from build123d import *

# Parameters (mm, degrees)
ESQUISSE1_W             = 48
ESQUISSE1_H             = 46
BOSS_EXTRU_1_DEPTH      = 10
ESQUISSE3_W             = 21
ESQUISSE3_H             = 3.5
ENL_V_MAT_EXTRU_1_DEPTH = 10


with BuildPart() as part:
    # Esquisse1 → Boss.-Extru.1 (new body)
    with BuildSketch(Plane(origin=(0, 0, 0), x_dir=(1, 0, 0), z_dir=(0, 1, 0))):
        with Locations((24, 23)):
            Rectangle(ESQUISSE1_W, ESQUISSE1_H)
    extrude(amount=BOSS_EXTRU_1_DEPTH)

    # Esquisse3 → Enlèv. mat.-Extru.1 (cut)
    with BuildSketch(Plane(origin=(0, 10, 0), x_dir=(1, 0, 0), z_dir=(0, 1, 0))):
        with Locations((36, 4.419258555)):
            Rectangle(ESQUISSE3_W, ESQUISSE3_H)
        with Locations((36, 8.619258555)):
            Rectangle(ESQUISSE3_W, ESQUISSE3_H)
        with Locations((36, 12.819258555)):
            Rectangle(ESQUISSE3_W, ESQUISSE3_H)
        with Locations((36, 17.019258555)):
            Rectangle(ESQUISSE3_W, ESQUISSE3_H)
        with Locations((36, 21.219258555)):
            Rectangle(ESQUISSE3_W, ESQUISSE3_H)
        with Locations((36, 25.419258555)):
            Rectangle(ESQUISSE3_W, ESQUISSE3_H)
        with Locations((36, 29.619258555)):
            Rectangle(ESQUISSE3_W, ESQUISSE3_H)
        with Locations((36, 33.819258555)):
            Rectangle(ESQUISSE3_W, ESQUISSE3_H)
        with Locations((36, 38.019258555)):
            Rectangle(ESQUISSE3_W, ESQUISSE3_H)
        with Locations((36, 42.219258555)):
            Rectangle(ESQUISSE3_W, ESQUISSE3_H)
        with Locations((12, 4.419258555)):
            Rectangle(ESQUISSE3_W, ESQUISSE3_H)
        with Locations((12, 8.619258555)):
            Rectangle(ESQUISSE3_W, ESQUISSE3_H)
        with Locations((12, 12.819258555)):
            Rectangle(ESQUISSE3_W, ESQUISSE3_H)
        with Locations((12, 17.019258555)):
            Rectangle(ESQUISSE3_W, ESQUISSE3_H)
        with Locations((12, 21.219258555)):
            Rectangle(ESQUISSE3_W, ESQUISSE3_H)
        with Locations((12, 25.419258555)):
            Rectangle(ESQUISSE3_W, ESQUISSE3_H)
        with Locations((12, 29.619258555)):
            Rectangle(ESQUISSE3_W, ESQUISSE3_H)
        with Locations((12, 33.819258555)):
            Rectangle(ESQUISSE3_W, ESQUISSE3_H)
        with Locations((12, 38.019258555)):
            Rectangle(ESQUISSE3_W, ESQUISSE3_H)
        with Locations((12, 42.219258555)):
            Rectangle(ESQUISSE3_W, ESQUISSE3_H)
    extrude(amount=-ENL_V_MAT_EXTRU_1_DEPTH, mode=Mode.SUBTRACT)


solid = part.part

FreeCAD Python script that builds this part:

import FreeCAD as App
import Part
import Sketcher
Q = App.Units.Quantity


def add_polygon(sketch, points):
    """Adds a closed chain of lines whose ends are joined by coincident constraints."""
    first, n = sketch.GeometryCount, len(points)
    for a, b in zip(points, points[1:] + points[:1]):
        sketch.addGeometry(Part.LineSegment(App.Vector(*a, 0), App.Vector(*b, 0)), False)
    for i in range(n):
        sketch.addConstraint(Sketcher.Constraint("Coincident", first + i, 2, first + (i + 1) % n, 1))

doc = App.newDocument("Part")
body = doc.addObject("PartDesign::Body", "Body")

# Sketch on XZ plane
sketch1 = doc.addObject("Sketcher::SketchObject", "Sketch")
body.addObject(sketch1)
sketch1.AttachmentSupport = (doc.XZ_Plane, [""])
sketch1.MapMode = "FlatFace"
add_polygon(sketch1, [(0, -46), (0, 0), (48, 0), (48, -46)])  # lines 0-3
sketch1.addConstraint(Sketcher.Constraint("Vertical", 0))
sketch1.addConstraint(Sketcher.Constraint("Horizontal", 1))
sketch1.addConstraint(Sketcher.Constraint("Vertical", 2))
sketch1.addConstraint(Sketcher.Constraint("Horizontal", 3))
sketch1.addConstraint(Sketcher.Constraint("Coincident", 0, 2, -1, 1))
sketch1.addConstraint(Sketcher.Constraint("DistanceX", 1, 1, 1, 2, Q("48 mm")))
sketch1.addConstraint(Sketcher.Constraint("DistanceY", 0, 1, 0, 2, Q("46 mm")))
pad1 = doc.addObject("PartDesign::Pad", "Pad")
body.addObject(pad1)
pad1.Profile = sketch1
pad1.Length = 10
pad1.Reversed = True

# Sketch on XZ plane
sketch2 = doc.addObject("Sketcher::SketchObject", "Sketch001")
body.addObject(sketch2)
sketch2.AttachmentSupport = (doc.XZ_Plane, [""])
sketch2.MapMode = "FlatFace"
sketch2.AttachmentOffset = App.Placement(App.Vector(0, 0, -10), App.Rotation())
add_polygon(sketch2, [(25.5, -6.2), (25.5, -2.7), (46.5, -2.7), (46.5, -6.2)])  # lines 0-3
add_polygon(sketch2, [(25.5, -10.4), (25.5, -6.9), (46.5, -6.9), (46.5, -10.4)])  # lines 4-7
add_polygon(sketch2, [(25.5, -14.6), (25.5, -11.1), (46.5, -11.1), (46.5, -14.6)])  # lines 8-11
add_polygon(sketch2, [(25.5, -18.8), (25.5, -15.3), (46.5, -15.3), (46.5, -18.8)])  # lines 12-15
add_polygon(sketch2, [(25.5, -23), (25.5, -19.5), (46.5, -19.5), (46.5, -23)])  # lines 16-19
add_polygon(sketch2, [(25.5, -27.2), (25.5, -23.7), (46.5, -23.7), (46.5, -27.2)])  # lines 20-23
add_polygon(sketch2, [(25.5, -31.4), (25.5, -27.9), (46.5, -27.9), (46.5, -31.4)])  # lines 24-27
add_polygon(sketch2, [(25.5, -35.6), (25.5, -32.1), (46.5, -32.1), (46.5, -35.6)])  # lines 28-31
add_polygon(sketch2, [(25.5, -39.8), (25.5, -36.3), (46.5, -36.3), (46.5, -39.8)])  # lines 32-35
add_polygon(sketch2, [(25.5, -44), (25.5, -40.5), (46.5, -40.5), (46.5, -44)])  # lines 36-39
add_polygon(sketch2, [(1.5, -6.2), (1.5, -2.7), (22.5, -2.7), (22.5, -6.2)])  # lines 40-43
add_polygon(sketch2, [(1.5, -10.4), (1.5, -6.9), (22.5, -6.9), (22.5, -10.4)])  # lines 44-47
add_polygon(sketch2, [(1.5, -14.6), (1.5, -11.1), (22.5, -11.1), (22.5, -14.6)])  # lines 48-51
add_polygon(sketch2, [(1.5, -18.8), (1.5, -15.3), (22.5, -15.3), (22.5, -18.8)])  # lines 52-55
add_polygon(sketch2, [(1.5, -23), (1.5, -19.5), (22.5, -19.5), (22.5, -23)])  # lines 56-59
add_polygon(sketch2, [(1.5, -27.2), (1.5, -23.7), (22.5, -23.7), (22.5, -27.2)])  # lines 60-63
add_polygon(sketch2, [(1.5, -31.4), (1.5, -27.9), (22.5, -27.9), (22.5, -31.4)])  # lines 64-67
add_polygon(sketch2, [(1.5, -35.6), (1.5, -32.1), (22.5, -32.1), (22.5, -35.6)])  # lines 68-71
add_polygon(sketch2, [(1.5, -39.8), (1.5, -36.3), (22.5, -36.3), (22.5, -39.8)])  # lines 72-75
add_polygon(sketch2, [(1.5, -44), (1.5, -40.5), (22.5, -40.5), (22.5, -44)])  # lines 76-79
sketch2.addConstraint(Sketcher.Constraint("Vertical", 0))
sketch2.addConstraint(Sketcher.Constraint("Horizontal", 1))
sketch2.addConstraint(Sketcher.Constraint("Vertical", 2))
sketch2.addConstraint(Sketcher.Constraint("Horizontal", 3))
sketch2.addConstraint(Sketcher.Constraint("Vertical", 4))
sketch2.addConstraint(Sketcher.Constraint("Horizontal", 5))
sketch2.addConstraint(Sketcher.Constraint("Vertical", 6))
sketch2.addConstraint(Sketcher.Constraint("Horizontal", 7))
sketch2.addConstraint(Sketcher.Constraint("Vertical", 8))
sketch2.addConstraint(Sketcher.Constraint("Horizontal", 9))
sketch2.addConstraint(Sketcher.Constraint("Vertical", 10))
sketch2.addConstraint(Sketcher.Constraint("Horizontal", 11))
sketch2.addConstraint(Sketcher.Constraint("Vertical", 12))
sketch2.addConstraint(Sketcher.Constraint("Horizontal", 13))
sketch2.addConstraint(Sketcher.Constraint("Vertical", 14))
sketch2.addConstraint(Sketcher.Constraint("Horizontal", 15))
sketch2.addConstraint(Sketcher.Constraint("Vertical", 16))
sketch2.addConstraint(Sketcher.Constraint("Horizontal", 17))
sketch2.addConstraint(Sketcher.Constraint("Vertical", 18))
sketch2.addConstraint(Sketcher.Constraint("Horizontal", 19))
sketch2.addConstraint(Sketcher.Constraint("Vertical", 20))
sketch2.addConstraint(Sketcher.Constraint("Horizontal", 21))
sketch2.addConstraint(Sketcher.Constraint("Vertical", 22))
sketch2.addConstraint(Sketcher.Constraint("Horizontal", 23))
sketch2.addConstraint(Sketcher.Constraint("Vertical", 24))
sketch2.addConstraint(Sketcher.Constraint("Horizontal", 25))
sketch2.addConstraint(Sketcher.Constraint("Vertical", 26))
sketch2.addConstraint(Sketcher.Constraint("Horizontal", 27))
sketch2.addConstraint(Sketcher.Constraint("Vertical", 28))
sketch2.addConstraint(Sketcher.Constraint("Horizontal", 29))
sketch2.addConstraint(Sketcher.Constraint("Vertical", 30))
sketch2.addConstraint(Sketcher.Constraint("Horizontal", 31))
sketch2.addConstraint(Sketcher.Constraint("Vertical", 32))
sketch2.addConstraint(Sketcher.Constraint("Horizontal", 33))
sketch2.addConstraint(Sketcher.Constraint("Vertical", 34))
sketch2.addConstraint(Sketcher.Constraint("Horizontal", 35))
sketch2.addConstraint(Sketcher.Constraint("Vertical", 36))
sketch2.addConstraint(Sketcher.Constraint("Horizontal", 37))
sketch2.addConstraint(Sketcher.Constraint("Vertical", 38))
sketch2.addConstraint(Sketcher.Constraint("Horizontal", 39))
sketch2.addConstraint(Sketcher.Constraint("Vertical", 40))
sketch2.addConstraint(Sketcher.Constraint("Horizontal", 41))
sketch2.addConstraint(Sketcher.Constraint("Vertical", 42))
sketch2.addConstraint(Sketcher.Constraint("Horizontal", 43))
sketch2.addConstraint(Sketcher.Constraint("Vertical", 44))
sketch2.addConstraint(Sketcher.Constraint("Horizontal", 45))
sketch2.addConstraint(Sketcher.Constraint("Vertical", 46))
sketch2.addConstraint(Sketcher.Constraint("Horizontal", 47))
sketch2.addConstraint(Sketcher.Constraint("Vertical", 48))
sketch2.addConstraint(Sketcher.Constraint("Horizontal", 49))
sketch2.addConstraint(Sketcher.Constraint("Vertical", 50))
sketch2.addConstraint(Sketcher.Constraint("Horizontal", 51))
sketch2.addConstraint(Sketcher.Constraint("Vertical", 52))
sketch2.addConstraint(Sketcher.Constraint("Horizontal", 53))
sketch2.addConstraint(Sketcher.Constraint("Vertical", 54))
sketch2.addConstraint(Sketcher.Constraint("Horizontal", 55))
sketch2.addConstraint(Sketcher.Constraint("Vertical", 56))
sketch2.addConstraint(Sketcher.Constraint("Horizontal", 57))
sketch2.addConstraint(Sketcher.Constraint("Vertical", 58))
sketch2.addConstraint(Sketcher.Constraint("Horizontal", 59))
sketch2.addConstraint(Sketcher.Constraint("Vertical", 60))
sketch2.addConstraint(Sketcher.Constraint("Horizontal", 61))
sketch2.addConstraint(Sketcher.Constraint("Vertical", 62))
sketch2.addConstraint(Sketcher.Constraint("Horizontal", 63))
sketch2.addConstraint(Sketcher.Constraint("Vertical", 64))
sketch2.addConstraint(Sketcher.Constraint("Horizontal", 65))
sketch2.addConstraint(Sketcher.Constraint("Vertical", 66))
sketch2.addConstraint(Sketcher.Constraint("Horizontal", 67))
sketch2.addConstraint(Sketcher.Constraint("Vertical", 68))
sketch2.addConstraint(Sketcher.Constraint("Horizontal", 69))
sketch2.addConstraint(Sketcher.Constraint("Vertical", 70))
sketch2.addConstraint(Sketcher.Constraint("Horizontal", 71))
sketch2.addConstraint(Sketcher.Constraint("Vertical", 72))
sketch2.addConstraint(Sketcher.Constraint("Horizontal", 73))
sketch2.addConstraint(Sketcher.Constraint("Vertical", 74))
sketch2.addConstraint(Sketcher.Constraint("Horizontal", 75))
sketch2.addConstraint(Sketcher.Constraint("Vertical", 76))
sketch2.addConstraint(Sketcher.Constraint("Horizontal", 77))
sketch2.addConstraint(Sketcher.Constraint("Vertical", 78))
sketch2.addConstraint(Sketcher.Constraint("Horizontal", 79))
sketch2.addConstraint(Sketcher.Constraint("Horizontal", 1, 2, 40, 2))
sketch2.addConstraint(Sketcher.Constraint("Horizontal", 3, 2, 42, 2))
sketch2.addConstraint(Sketcher.Constraint("Horizontal", 5, 2, 44, 2))
sketch2.addConstraint(Sketcher.Constraint("Horizontal", 7, 2, 46, 2))
sketch2.addConstraint(Sketcher.Constraint("Horizontal", 9, 2, 48, 2))
sketch2.addConstraint(Sketcher.Constraint("Horizontal", 11, 2, 50, 2))
sketch2.addConstraint(Sketcher.Constraint("Horizontal", 13, 2, 52, 2))
sketch2.addConstraint(Sketcher.Constraint("Horizontal", 15, 2, 54, 2))
sketch2.addConstraint(Sketcher.Constraint("Horizontal", 17, 2, 56, 2))
sketch2.addConstraint(Sketcher.Constraint("Horizontal", 19, 2, 58, 2))
sketch2.addConstraint(Sketcher.Constraint("Horizontal", 21, 2, 60, 2))
sketch2.addConstraint(Sketcher.Constraint("Horizontal", 23, 2, 62, 2))
sketch2.addConstraint(Sketcher.Constraint("Horizontal", 25, 2, 64, 2))
sketch2.addConstraint(Sketcher.Constraint("Horizontal", 27, 2, 66, 2))
sketch2.addConstraint(Sketcher.Constraint("Horizontal", 29, 2, 68, 2))
sketch2.addConstraint(Sketcher.Constraint("Horizontal", 31, 2, 70, 2))
sketch2.addConstraint(Sketcher.Constraint("Horizontal", 33, 2, 72, 2))
sketch2.addConstraint(Sketcher.Constraint("Horizontal", 35, 2, 74, 2))
sketch2.addConstraint(Sketcher.Constraint("Horizontal", 37, 2, 76, 2))
sketch2.addConstraint(Sketcher.Constraint("Horizontal", 39, 2, 78, 2))
sketch2.addConstraint(Sketcher.Constraint("Vertical", 3, 2, 4, 2))
sketch2.addConstraint(Sketcher.Constraint("Vertical", 2, 2, 5, 2))
sketch2.addConstraint(Sketcher.Constraint("Vertical", 7, 2, 8, 2))
sketch2.addConstraint(Sketcher.Constraint("Vertical", 6, 2, 9, 2))
sketch2.addConstraint(Sketcher.Constraint("Vertical", 11, 2, 12, 2))
sketch2.addConstraint(Sketcher.Constraint("Vertical", 10, 2, 13, 2))
sketch2.addConstraint(Sketcher.Constraint("Vertical", 15, 2, 16, 2))
sketch2.addConstraint(Sketcher.Constraint("Vertical", 14, 2, 17, 2))
sketch2.addConstraint(Sketcher.Constraint("Vertical", 19, 2, 20, 2))
sketch2.addConstraint(Sketcher.Constraint("Vertical", 18, 2, 21, 2))
sketch2.addConstraint(Sketcher.Constraint("Vertical", 23, 2, 24, 2))
sketch2.addConstraint(Sketcher.Constraint("Vertical", 22, 2, 25, 2))
sketch2.addConstraint(Sketcher.Constraint("Vertical", 27, 2, 28, 2))
sketch2.addConstraint(Sketcher.Constraint("Vertical", 26, 2, 29, 2))
sketch2.addConstraint(Sketcher.Constraint("Vertical", 31, 2, 32, 2))
sketch2.addConstraint(Sketcher.Constraint("Vertical", 30, 2, 33, 2))
sketch2.addConstraint(Sketcher.Constraint("Vertical", 35, 2, 36, 2))
sketch2.addConstraint(Sketcher.Constraint("Vertical", 34, 2, 37, 2))
sketch2.addConstraint(Sketcher.Constraint("Vertical", 43, 2, 44, 2))
sketch2.addConstraint(Sketcher.Constraint("Vertical", 42, 2, 45, 2))
sketch2.addConstraint(Sketcher.Constraint("Vertical", 47, 2, 48, 2))
sketch2.addConstraint(Sketcher.Constraint("Vertical", 46, 2, 49, 2))
sketch2.addConstraint(Sketcher.Constraint("Vertical", 51, 2, 52, 2))
sketch2.addConstraint(Sketcher.Constraint("Vertical", 50, 2, 53, 2))
sketch2.addConstraint(Sketcher.Constraint("Vertical", 55, 2, 56, 2))
sketch2.addConstraint(Sketcher.Constraint("Vertical", 54, 2, 57, 2))
sketch2.addConstraint(Sketcher.Constraint("Vertical", 59, 2, 60, 2))
sketch2.addConstraint(Sketcher.Constraint("Vertical", 58, 2, 61, 2))
sketch2.addConstraint(Sketcher.Constraint("Vertical", 63, 2, 64, 2))
sketch2.addConstraint(Sketcher.Constraint("Vertical", 62, 2, 65, 2))
sketch2.addConstraint(Sketcher.Constraint("Vertical", 67, 2, 68, 2))
sketch2.addConstraint(Sketcher.Constraint("Vertical", 66, 2, 69, 2))
sketch2.addConstraint(Sketcher.Constraint("Vertical", 71, 2, 72, 2))
sketch2.addConstraint(Sketcher.Constraint("Vertical", 70, 2, 73, 2))
sketch2.addConstraint(Sketcher.Constraint("Vertical", 75, 2, 76, 2))
sketch2.addConstraint(Sketcher.Constraint("Vertical", 74, 2, 77, 2))
sketch2.addConstraint(Sketcher.Constraint("Equal", 39, 41))
sketch2.addConstraint(Sketcher.Constraint("Equal", 2, 4))
sketch2.addConstraint(Sketcher.Constraint("Equal", 6, 8))
sketch2.addConstraint(Sketcher.Constraint("Equal", 10, 12))
sketch2.addConstraint(Sketcher.Constraint("Equal", 14, 16))
sketch2.addConstraint(Sketcher.Constraint("Equal", 18, 20))
sketch2.addConstraint(Sketcher.Constraint("Equal", 22, 24))
sketch2.addConstraint(Sketcher.Constraint("Equal", 26, 28))
sketch2.addConstraint(Sketcher.Constraint("Equal", 30, 32))
sketch2.addConstraint(Sketcher.Constraint("Equal", 34, 36))
sketch2.addConstraint(Sketcher.Constraint("DistanceX", 1, 1, 1, 2, Q("21 mm")))
sketch2.addConstraint(Sketcher.Constraint("DistanceY", 0, 1, 0, 2, Q("3.5 mm")))
sketch2.addConstraint(Sketcher.Constraint("DistanceX", -1, 1, 0, 2, Q("25.5 mm")))
sketch2.addConstraint(Sketcher.Constraint("DistanceX", -1, 1, 40, 2, Q("1.5 mm")))
sketch2.addConstraint(Sketcher.Constraint("DistanceY", 0, 2, -1, 1, Q("2.669259 mm")))
sketch2.addConstraint(Sketcher.Constraint("DistanceY", 4, 2, -1, 1, Q("6.869259 mm")))
sketch2.addConstraint(Sketcher.Constraint("DistanceY", 8, 2, -1, 1, Q("11.069259 mm")))
sketch2.addConstraint(Sketcher.Constraint("DistanceY", 12, 2, -1, 1, Q("15.269259 mm")))
sketch2.addConstraint(Sketcher.Constraint("DistanceY", 16, 2, -1, 1, Q("19.469259 mm")))
sketch2.addConstraint(Sketcher.Constraint("DistanceY", 20, 2, -1, 1, Q("23.669259 mm")))
sketch2.addConstraint(Sketcher.Constraint("DistanceY", 24, 2, -1, 1, Q("27.869259 mm")))
sketch2.addConstraint(Sketcher.Constraint("DistanceY", 28, 2, -1, 1, Q("32.069259 mm")))
sketch2.addConstraint(Sketcher.Constraint("DistanceY", 32, 2, -1, 1, Q("36.269259 mm")))
sketch2.addConstraint(Sketcher.Constraint("DistanceY", 36, 2, -1, 1, Q("40.469259 mm")))
pocket1 = doc.addObject("PartDesign::Pocket", "Pocket")
body.addObject(pocket1)
pocket1.Profile = sketch2
pocket1.Length = 10
pocket1.Reversed = True

doc.recompute()
